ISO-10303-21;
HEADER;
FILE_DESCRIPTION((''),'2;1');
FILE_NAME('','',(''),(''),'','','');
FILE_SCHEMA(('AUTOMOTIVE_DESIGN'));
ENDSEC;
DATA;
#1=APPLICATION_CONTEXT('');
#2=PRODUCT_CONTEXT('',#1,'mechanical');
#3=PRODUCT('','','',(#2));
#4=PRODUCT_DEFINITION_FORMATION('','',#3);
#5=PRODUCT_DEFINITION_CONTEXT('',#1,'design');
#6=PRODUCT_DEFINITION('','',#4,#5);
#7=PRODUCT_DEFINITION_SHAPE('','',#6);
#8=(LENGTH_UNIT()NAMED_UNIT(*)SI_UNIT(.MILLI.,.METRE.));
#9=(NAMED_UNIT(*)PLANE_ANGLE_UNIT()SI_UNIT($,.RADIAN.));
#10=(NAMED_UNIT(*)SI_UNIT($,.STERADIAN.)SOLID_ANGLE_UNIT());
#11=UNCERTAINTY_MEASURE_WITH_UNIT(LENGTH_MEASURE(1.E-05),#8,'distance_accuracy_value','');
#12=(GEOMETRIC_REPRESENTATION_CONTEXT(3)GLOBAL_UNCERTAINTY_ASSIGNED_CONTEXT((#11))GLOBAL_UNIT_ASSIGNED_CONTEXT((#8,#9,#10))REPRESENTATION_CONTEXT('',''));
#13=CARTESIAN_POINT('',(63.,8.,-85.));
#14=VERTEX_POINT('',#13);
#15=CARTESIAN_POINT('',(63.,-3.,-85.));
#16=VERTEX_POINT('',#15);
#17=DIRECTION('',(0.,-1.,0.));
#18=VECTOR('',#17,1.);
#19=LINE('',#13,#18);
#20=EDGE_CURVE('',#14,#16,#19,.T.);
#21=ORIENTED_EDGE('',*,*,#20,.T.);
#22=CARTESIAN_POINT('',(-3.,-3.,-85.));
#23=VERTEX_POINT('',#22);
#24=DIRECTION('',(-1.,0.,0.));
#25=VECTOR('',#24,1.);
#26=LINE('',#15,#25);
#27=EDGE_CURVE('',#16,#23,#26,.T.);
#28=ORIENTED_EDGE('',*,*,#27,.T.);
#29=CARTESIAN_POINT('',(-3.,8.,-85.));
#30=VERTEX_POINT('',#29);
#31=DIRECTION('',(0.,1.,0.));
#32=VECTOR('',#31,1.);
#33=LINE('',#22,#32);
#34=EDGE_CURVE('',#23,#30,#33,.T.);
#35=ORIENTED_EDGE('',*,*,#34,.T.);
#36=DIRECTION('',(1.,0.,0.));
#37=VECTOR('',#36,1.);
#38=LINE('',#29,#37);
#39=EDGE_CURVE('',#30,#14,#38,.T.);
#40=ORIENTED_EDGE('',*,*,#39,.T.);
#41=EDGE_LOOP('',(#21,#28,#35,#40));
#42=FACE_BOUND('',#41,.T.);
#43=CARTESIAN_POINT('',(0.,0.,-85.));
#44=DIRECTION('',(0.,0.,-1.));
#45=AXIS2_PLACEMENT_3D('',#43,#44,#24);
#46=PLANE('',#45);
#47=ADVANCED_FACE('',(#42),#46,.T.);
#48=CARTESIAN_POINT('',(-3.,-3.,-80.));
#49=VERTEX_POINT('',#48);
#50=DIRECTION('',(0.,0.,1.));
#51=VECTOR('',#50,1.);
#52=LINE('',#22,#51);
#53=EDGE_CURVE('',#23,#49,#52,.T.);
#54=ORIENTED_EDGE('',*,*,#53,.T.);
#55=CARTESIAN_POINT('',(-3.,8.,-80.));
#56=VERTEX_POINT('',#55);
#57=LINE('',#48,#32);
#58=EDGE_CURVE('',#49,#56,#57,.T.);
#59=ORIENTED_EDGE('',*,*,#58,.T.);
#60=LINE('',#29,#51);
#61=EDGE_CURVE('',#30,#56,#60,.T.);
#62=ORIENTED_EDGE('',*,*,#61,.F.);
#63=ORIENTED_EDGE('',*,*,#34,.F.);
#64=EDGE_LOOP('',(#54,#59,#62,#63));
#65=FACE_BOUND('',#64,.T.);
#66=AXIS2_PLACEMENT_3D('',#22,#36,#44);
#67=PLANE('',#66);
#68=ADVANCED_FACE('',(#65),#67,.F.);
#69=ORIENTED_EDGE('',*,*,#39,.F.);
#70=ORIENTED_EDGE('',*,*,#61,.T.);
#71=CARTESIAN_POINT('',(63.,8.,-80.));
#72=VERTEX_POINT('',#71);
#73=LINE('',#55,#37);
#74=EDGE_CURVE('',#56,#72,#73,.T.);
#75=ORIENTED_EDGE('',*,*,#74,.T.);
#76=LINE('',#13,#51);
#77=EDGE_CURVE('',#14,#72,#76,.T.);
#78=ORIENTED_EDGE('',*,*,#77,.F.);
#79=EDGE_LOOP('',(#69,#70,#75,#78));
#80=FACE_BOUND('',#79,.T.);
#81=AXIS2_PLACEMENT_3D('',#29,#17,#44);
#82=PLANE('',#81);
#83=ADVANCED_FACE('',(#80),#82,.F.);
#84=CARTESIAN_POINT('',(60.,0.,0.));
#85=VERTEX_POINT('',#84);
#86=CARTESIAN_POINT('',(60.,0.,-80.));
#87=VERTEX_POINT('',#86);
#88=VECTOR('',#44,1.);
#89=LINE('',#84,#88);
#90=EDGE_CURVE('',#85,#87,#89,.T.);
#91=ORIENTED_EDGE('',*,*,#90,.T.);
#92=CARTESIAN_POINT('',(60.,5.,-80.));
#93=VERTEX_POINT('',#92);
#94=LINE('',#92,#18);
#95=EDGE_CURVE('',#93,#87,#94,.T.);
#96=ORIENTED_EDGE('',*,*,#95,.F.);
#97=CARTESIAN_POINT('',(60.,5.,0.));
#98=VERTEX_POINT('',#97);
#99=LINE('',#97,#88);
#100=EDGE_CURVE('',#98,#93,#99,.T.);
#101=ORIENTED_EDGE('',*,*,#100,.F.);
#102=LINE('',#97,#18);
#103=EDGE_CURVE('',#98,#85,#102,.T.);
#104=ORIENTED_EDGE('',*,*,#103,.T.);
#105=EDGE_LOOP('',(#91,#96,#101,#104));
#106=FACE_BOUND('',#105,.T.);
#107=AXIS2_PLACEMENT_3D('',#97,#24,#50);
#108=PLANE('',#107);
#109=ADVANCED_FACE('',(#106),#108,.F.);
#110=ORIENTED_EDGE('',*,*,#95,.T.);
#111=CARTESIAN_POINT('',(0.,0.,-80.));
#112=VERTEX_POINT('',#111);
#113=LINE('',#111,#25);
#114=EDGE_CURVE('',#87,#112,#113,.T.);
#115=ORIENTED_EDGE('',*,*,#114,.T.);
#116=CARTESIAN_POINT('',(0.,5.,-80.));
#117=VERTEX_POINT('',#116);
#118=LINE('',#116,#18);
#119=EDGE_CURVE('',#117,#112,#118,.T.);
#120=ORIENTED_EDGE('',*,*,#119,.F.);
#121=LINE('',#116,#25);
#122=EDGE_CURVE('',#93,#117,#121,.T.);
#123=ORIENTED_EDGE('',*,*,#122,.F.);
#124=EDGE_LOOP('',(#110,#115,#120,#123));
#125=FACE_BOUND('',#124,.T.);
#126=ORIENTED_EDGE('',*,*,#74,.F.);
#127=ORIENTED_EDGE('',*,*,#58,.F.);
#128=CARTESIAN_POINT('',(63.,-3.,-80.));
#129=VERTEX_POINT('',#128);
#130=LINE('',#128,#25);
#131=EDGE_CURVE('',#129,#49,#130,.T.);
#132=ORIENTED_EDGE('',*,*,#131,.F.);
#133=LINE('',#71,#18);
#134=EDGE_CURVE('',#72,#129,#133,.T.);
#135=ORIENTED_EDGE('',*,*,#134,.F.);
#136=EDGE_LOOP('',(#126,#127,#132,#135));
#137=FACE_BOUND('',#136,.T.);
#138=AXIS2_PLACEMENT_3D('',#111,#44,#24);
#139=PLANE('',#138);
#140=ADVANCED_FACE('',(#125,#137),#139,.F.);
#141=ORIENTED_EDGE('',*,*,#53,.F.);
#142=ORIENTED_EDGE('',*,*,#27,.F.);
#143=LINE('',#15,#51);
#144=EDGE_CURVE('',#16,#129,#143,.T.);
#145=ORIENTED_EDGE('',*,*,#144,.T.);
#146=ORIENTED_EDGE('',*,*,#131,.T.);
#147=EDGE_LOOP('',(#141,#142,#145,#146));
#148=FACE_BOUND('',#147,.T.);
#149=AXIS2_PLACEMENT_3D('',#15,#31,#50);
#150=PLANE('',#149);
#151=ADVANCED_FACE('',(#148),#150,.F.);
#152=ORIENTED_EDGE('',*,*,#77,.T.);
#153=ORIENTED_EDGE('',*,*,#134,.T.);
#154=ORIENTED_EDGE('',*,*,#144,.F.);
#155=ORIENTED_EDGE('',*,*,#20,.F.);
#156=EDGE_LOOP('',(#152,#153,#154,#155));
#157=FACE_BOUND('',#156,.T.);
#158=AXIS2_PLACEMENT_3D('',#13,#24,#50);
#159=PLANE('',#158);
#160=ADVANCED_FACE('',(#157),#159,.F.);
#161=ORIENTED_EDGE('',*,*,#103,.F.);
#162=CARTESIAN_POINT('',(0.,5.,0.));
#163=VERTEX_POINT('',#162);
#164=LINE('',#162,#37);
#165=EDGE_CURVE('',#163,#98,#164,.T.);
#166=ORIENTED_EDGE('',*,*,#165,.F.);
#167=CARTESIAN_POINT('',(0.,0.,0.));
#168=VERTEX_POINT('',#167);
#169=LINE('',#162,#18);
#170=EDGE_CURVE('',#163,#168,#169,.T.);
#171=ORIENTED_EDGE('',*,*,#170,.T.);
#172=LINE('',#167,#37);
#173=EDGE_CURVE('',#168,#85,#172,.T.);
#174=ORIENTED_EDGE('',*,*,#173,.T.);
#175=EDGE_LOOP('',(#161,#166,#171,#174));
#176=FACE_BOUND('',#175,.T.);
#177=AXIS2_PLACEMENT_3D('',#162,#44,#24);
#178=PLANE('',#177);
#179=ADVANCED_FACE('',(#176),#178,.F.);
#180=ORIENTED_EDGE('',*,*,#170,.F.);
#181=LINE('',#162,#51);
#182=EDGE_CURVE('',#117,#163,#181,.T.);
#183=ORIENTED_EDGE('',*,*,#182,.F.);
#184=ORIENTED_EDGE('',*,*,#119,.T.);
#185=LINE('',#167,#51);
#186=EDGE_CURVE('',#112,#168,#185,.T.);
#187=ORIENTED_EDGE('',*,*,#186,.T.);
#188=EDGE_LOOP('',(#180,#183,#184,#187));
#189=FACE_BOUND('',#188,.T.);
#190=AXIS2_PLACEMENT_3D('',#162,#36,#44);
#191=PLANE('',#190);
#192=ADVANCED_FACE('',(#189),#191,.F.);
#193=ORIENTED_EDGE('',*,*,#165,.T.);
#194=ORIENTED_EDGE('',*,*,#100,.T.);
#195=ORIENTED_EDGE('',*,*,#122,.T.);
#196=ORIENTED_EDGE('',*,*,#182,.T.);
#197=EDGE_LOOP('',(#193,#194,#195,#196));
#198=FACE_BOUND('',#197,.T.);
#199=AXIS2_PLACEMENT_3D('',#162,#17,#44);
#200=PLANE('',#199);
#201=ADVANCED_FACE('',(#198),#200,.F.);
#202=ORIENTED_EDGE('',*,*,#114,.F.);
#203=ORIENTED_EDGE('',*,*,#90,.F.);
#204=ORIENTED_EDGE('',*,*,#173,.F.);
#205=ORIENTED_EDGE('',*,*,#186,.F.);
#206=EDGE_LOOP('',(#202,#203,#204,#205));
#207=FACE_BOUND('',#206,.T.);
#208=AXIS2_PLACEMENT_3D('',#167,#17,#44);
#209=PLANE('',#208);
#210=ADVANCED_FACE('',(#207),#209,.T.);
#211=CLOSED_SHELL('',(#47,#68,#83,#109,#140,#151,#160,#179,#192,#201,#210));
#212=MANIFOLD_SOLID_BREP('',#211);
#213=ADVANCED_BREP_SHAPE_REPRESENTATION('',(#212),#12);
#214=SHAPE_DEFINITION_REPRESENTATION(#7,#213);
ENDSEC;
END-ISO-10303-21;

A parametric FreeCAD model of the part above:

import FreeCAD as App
import Part
import Sketcher
Q = App.Units.Quantity

doc = App.newDocument("Part")
body = doc.addObject("PartDesign::Body", "Body")

sketch1 = doc.addObject("Sketcher::SketchObject", "Sketch")
body.addObject(sketch1)
sketch1.AttachmentSupport = (doc.XZ_Plane, [""])
sketch1.MapMode = "FlatFace"
sketch1.addGeometry(Part.LineSegment(App.Vector(0, -80, 0), App.Vector(0, 0, 0)), False)
sketch1.addGeometry(Part.LineSegment(App.Vector(0, 0, 0), App.Vector(60, 0, 0)), False)
sketch1.addGeometry(Part.LineSegment(App.Vector(60, 0, 0), App.Vector(60, -80, 0)), False)
sketch1.addGeometry(Part.LineSegment(App.Vector(60, -80, 0), App.Vector(0, -80, 0)), False)
sketch1.addConstraint(Sketcher.Constraint("Coincident", 0, 2, 1, 1))
sketch1.addConstraint(Sketcher.Constraint("Coincident", 1, 2, 2, 1))
sketch1.addConstraint(Sketcher.Constraint("Coincident", 2, 2, 3, 1))
sketch1.addConstraint(Sketcher.Constraint("Coincident", 3, 2, 0, 1))
sketch1.addConstraint(Sketcher.Constraint("Vertical", 0))
sketch1.addConstraint(Sketcher.Constraint("Horizontal", 1))
sketch1.addConstraint(Sketcher.Constraint("Vertical", 2))
sketch1.addConstraint(Sketcher.Constraint("Horizontal", 3))
sketch1.addConstraint(Sketcher.Constraint("Coincident", 0, 2, -1, 1))
sketch1.addConstraint(Sketcher.Constraint("DistanceX", 1, 1, 1, 2, Q("60 mm")))
sketch1.addConstraint(Sketcher.Constraint("DistanceY", 0, 1, 0, 2, Q("80 mm")))
pad1 = doc.addObject("PartDesign::Pad", "Pad")
body.addObject(pad1)
pad1.Profile = sketch1
pad1.Length = 5
pad1.Reversed = True

sketch2 = doc.addObject("Sketcher::SketchObject", "Sketch001")
body.addObject(sketch2)
sketch2.AttachmentSupport = (doc.XY_Plane, [""])
sketch2.MapMode = "FlatFace"
sketch2.AttachmentOffset = App.Placement(App.Vector(0, 0, -80), App.Rotation())
sketch2.addGeometry(Part.LineSegment(App.Vector(63, 8, 0), App.Vector(63, -3, 0)), False)
sketch2.addGeometry(Part.LineSegment(App.Vector(63, -3, 0), App.Vector(-3, -3, 0)), False)
sketch2.addGeometry(Part.LineSegment(App.Vector(-3, -3, 0), App.Vector(-3, 8, 0)), False)
sketch2.addGeometry(Part.LineSegment(App.Vector(-3, 8, 0), App.Vector(63, 8, 0)), False)
sketch2.addConstraint(Sketcher.Constraint("Coincident", 0, 2, 1, 1))
sketch2.addConstraint(Sketcher.Constraint("Coincident", 1, 2, 2, 1))
sketch2.addConstraint(Sketcher.Constraint("Coincident", 2, 2, 3, 1))
sketch2.addConstraint(Sketcher.Constraint("Coincident", 3, 2, 0, 1))
sketch2.addConstraint(Sketcher.Constraint("Vertical", 0))
sketch2.addConstraint(Sketcher.Constraint("Horizontal", 1))
sketch2.addConstraint(Sketcher.Constraint("Vertical", 2))
sketch2.addConstraint(Sketcher.Constraint("Horizontal", 3))
sketch2.addConstraint(Sketcher.Constraint("DistanceX", 1, 2, 1, 1, Q("66 mm")))
sketch2.addConstraint(Sketcher.Constraint("DistanceY", 0, 2, 0, 1, Q("11 mm")))
sketch2.addConstraint(Sketcher.Constraint("DistanceX", -1, 1, 0, 2, Q("63 mm")))
sketch2.addConstraint(Sketcher.Constraint("DistanceY", 0, 2, -1, 1, Q("3 mm")))
pad2 = doc.addObject("PartDesign::Pad", "Pad001")
body.addObject(pad2)
pad2.Profile = sketch2
pad2.Length = 5
pad2.Reversed = True

doc.recompute()
